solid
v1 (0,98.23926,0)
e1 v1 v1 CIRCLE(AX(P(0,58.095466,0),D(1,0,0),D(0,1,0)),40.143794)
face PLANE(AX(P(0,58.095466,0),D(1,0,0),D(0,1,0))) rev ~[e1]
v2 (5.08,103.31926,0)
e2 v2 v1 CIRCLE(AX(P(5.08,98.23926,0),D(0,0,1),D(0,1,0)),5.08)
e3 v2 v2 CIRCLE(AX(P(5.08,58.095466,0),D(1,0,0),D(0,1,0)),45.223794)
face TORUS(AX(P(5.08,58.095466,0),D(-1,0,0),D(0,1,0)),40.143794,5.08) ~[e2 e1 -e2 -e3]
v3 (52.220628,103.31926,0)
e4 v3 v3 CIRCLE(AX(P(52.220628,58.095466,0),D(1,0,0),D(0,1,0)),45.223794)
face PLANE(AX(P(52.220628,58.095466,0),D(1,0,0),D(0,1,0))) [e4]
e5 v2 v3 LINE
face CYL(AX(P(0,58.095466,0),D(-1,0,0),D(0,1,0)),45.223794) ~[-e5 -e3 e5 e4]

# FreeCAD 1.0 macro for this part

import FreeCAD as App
import Part
import Sketcher
Q = App.Units.Quantity


def edges_at(feature, points):
    """Names of the edges that pass closest to the given points."""
    edges = feature.Shape.Edges
    near = lambda p: min(range(len(edges)), key=lambda i: edges[i].distToShape(Part.Vertex(*p))[0])
    return sorted({f"Edge{near(p) + 1}" for p in points})

doc = App.newDocument("Part")
body = doc.addObject("PartDesign::Body", "Body")

# Sketch on YZ plane
sketch1 = doc.addObject("Sketcher::SketchObject", "Sketch")
body.addObject(sketch1)
sketch1.AttachmentSupport = (doc.YZ_Plane, [""])
sketch1.MapMode = "FlatFace"
sketch1.addGeometry(Part.Circle(App.Vector(58, 0, 0), App.Vector(0, 0, 1), 45), False)
sketch1.addConstraint(Sketcher.Constraint("PointOnObject", 0, 3, -1))
sketch1.addConstraint(Sketcher.Constraint("Diameter", 0, Q("90.447588 mm")))
sketch1.addConstraint(Sketcher.Constraint("DistanceX", -1, 1, 0, 3, Q("58.095466 mm")))
pad1 = doc.addObject("PartDesign::Pad", "Pad")
body.addObject(pad1)
pad1.Profile = sketch1
pad1.Length = 52.220628
doc.recompute()

fillet = doc.addObject("PartDesign::Fillet", "Fillet")
body.addObject(fillet)
fillet.Base = (pad1, edges_at(pad1, [(0, 12.872, 0)]))
fillet.Radius = Q("0.2 in")

doc.recompute()
